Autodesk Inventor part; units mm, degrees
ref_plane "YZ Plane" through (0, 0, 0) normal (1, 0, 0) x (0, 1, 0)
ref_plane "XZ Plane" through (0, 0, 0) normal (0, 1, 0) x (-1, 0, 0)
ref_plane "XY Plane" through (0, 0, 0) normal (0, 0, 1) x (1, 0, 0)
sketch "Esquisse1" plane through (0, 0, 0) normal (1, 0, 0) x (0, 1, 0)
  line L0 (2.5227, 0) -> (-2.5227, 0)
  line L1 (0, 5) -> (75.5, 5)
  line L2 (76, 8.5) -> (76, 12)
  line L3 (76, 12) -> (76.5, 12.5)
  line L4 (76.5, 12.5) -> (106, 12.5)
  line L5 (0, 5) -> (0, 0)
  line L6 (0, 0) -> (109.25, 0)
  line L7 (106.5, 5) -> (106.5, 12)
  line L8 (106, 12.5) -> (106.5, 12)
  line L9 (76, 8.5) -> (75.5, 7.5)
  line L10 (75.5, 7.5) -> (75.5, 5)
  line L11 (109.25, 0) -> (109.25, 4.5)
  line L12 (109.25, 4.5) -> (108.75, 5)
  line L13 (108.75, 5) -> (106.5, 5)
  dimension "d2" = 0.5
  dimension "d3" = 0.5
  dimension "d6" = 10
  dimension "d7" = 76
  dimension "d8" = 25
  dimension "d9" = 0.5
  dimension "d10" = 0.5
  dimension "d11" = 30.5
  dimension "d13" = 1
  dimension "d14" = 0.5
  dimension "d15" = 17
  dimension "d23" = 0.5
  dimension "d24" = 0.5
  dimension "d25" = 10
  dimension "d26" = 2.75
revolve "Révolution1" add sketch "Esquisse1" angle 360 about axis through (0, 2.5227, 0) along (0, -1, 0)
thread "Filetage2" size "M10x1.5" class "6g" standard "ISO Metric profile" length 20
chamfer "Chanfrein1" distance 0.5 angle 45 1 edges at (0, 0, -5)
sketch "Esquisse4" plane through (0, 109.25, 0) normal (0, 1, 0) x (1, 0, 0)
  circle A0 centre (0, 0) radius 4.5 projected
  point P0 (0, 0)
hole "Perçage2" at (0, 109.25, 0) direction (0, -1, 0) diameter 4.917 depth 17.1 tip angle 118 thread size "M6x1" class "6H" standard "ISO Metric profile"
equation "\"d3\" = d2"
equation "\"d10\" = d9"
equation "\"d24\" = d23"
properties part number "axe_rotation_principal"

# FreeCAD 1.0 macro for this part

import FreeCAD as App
import Part
import Sketcher
Q = App.Units.Quantity


def edges_at(feature, points):
    """Names of the edges that pass closest to the given points."""
    edges = feature.Shape.Edges
    near = lambda p: min(range(len(edges)), key=lambda i: edges[i].distToShape(Part.Vertex(*p))[0])
    return sorted({f"Edge{near(p) + 1}" for p in points})


def add_polygon(sketch, points):
    """Adds a closed chain of lines whose ends are joined by coincident constraints."""
    first, n = sketch.GeometryCount, len(points)
    for a, b in zip(points, points[1:] + points[:1]):
        sketch.addGeometry(Part.LineSegment(App.Vector(*a, 0), App.Vector(*b, 0)), False)
    for i in range(n):
        sketch.addConstraint(Sketcher.Constraint("Coincident", first + i, 2, first + (i + 1) % n, 1))

doc = App.newDocument("Part")
body = doc.addObject("PartDesign::Body", "Body")

# Sketch on YZ plane
sketch1 = body.newObject("Sketcher::SketchObject", "Sketch")
sketch1.AttachmentSupport = (doc.getObject("YZ_Plane"), [""])
sketch1.MapMode = "FlatFace"
add_polygon(sketch1, [(0, 0), (109.2, 0), (109.2, 4.5), (108.8, 5), (106.5, 5), (106.5, 12), (106, 12.5), (76.5, 12.5), (76, 12), (76, 8.5), (75.5, 7.5), (75.5, 5), (0, 5)])  # lines 0-12
sketch1.addConstraint([
    Sketcher.Constraint("Horizontal", 0),
    Sketcher.Constraint("Vertical", 1),
    Sketcher.Constraint("Horizontal", 3),
    Sketcher.Constraint("Vertical", 4),
    Sketcher.Constraint("Horizontal", 6),
    Sketcher.Constraint("Vertical", 8),
    Sketcher.Constraint("Vertical", 10),
    Sketcher.Constraint("Horizontal", 11),
    Sketcher.Constraint("Vertical", 12),
    Sketcher.Constraint("Coincident", 12, 2, -1, 1),
    Sketcher.Constraint("Parallel", 2, 5),
    Sketcher.Constraint("Perpendicular", 5, 7),
    Sketcher.Constraint("Horizontal", 4, 2, 7, 2),
    Sketcher.Constraint("Horizontal", 3, 2, 10, 2),
    Sketcher.Constraint("Equal", 2, 5),
    Sketcher.Constraint("Equal", 5, 7),
    Sketcher.Constraint("DistanceX", -1, 1, 7, 2, Q("76 mm")),
    Sketcher.Constraint("DistanceY", 9, 2, 8, 2, Q("1 mm")),
    Sketcher.Constraint("DistanceX", 9, 2, 6, 2, Q("1 mm")),
    Sketcher.Constraint("DistanceX", 2, 2, 1, 2, Q("0.5 mm")),
    Sketcher.Constraint("DistanceX", 7, 2, 4, 2, Q("30.5 mm")),
    Sketcher.Constraint("DistanceY", 4, 1, 4, 2, Q("7 mm")),
    Sketcher.Constraint("DistanceY", 12, 2, 12, 1, Q("5 mm")),
    Sketcher.Constraint("DistanceX", 3, 2, 1, 2, Q("2.75 mm")),
    Sketcher.Constraint("DistanceY", 8, 2, 8, 1, Q("3.5 mm")),
])
revolution = body.newObject("PartDesign::Revolution", "Revolution")
revolution.Profile = sketch1
revolution.ReferenceAxis = (sketch1, ["H_Axis"])
revolution.Angle = 360
doc.recompute()

chamfer = body.newObject("PartDesign::Chamfer", "Chamfer")
chamfer.Base = (revolution, edges_at(revolution, [(0, 0, -5)]))
chamfer.Size = 0.5

# Sketch on XZ plane
sketch2 = body.newObject("Sketcher::SketchObject", "Sketch001")
sketch2.AttachmentSupport = (doc.getObject("XZ_Plane"), [""])
sketch2.MapMode = "FlatFace"
sketch2.AttachmentOffset = App.Placement(App.Vector(0, 0, -109.25), App.Rotation())
sketch2.addGeometry(Part.Circle(App.Vector(0, 0, 0), App.Vector(0, 0, 1), 2.5), False)
sketch2.addConstraint([
    Sketcher.Constraint("Coincident", 0, 3, -1, 1),
    Sketcher.Constraint("Diameter", 0, Q("4.917 mm")),
])
doc.recompute()
hole = body.newObject("PartDesign::Hole", "Hole")
hole.Profile = sketch2
hole.ThreadType = "None"
hole.Diameter = 4.917
hole.DepthType = "Dimension"
hole.Depth = 17.1
hole.DrillPoint = "Angled"
hole.DrillPointAngle = 118
hole.Reversed = True

doc.recompute()
